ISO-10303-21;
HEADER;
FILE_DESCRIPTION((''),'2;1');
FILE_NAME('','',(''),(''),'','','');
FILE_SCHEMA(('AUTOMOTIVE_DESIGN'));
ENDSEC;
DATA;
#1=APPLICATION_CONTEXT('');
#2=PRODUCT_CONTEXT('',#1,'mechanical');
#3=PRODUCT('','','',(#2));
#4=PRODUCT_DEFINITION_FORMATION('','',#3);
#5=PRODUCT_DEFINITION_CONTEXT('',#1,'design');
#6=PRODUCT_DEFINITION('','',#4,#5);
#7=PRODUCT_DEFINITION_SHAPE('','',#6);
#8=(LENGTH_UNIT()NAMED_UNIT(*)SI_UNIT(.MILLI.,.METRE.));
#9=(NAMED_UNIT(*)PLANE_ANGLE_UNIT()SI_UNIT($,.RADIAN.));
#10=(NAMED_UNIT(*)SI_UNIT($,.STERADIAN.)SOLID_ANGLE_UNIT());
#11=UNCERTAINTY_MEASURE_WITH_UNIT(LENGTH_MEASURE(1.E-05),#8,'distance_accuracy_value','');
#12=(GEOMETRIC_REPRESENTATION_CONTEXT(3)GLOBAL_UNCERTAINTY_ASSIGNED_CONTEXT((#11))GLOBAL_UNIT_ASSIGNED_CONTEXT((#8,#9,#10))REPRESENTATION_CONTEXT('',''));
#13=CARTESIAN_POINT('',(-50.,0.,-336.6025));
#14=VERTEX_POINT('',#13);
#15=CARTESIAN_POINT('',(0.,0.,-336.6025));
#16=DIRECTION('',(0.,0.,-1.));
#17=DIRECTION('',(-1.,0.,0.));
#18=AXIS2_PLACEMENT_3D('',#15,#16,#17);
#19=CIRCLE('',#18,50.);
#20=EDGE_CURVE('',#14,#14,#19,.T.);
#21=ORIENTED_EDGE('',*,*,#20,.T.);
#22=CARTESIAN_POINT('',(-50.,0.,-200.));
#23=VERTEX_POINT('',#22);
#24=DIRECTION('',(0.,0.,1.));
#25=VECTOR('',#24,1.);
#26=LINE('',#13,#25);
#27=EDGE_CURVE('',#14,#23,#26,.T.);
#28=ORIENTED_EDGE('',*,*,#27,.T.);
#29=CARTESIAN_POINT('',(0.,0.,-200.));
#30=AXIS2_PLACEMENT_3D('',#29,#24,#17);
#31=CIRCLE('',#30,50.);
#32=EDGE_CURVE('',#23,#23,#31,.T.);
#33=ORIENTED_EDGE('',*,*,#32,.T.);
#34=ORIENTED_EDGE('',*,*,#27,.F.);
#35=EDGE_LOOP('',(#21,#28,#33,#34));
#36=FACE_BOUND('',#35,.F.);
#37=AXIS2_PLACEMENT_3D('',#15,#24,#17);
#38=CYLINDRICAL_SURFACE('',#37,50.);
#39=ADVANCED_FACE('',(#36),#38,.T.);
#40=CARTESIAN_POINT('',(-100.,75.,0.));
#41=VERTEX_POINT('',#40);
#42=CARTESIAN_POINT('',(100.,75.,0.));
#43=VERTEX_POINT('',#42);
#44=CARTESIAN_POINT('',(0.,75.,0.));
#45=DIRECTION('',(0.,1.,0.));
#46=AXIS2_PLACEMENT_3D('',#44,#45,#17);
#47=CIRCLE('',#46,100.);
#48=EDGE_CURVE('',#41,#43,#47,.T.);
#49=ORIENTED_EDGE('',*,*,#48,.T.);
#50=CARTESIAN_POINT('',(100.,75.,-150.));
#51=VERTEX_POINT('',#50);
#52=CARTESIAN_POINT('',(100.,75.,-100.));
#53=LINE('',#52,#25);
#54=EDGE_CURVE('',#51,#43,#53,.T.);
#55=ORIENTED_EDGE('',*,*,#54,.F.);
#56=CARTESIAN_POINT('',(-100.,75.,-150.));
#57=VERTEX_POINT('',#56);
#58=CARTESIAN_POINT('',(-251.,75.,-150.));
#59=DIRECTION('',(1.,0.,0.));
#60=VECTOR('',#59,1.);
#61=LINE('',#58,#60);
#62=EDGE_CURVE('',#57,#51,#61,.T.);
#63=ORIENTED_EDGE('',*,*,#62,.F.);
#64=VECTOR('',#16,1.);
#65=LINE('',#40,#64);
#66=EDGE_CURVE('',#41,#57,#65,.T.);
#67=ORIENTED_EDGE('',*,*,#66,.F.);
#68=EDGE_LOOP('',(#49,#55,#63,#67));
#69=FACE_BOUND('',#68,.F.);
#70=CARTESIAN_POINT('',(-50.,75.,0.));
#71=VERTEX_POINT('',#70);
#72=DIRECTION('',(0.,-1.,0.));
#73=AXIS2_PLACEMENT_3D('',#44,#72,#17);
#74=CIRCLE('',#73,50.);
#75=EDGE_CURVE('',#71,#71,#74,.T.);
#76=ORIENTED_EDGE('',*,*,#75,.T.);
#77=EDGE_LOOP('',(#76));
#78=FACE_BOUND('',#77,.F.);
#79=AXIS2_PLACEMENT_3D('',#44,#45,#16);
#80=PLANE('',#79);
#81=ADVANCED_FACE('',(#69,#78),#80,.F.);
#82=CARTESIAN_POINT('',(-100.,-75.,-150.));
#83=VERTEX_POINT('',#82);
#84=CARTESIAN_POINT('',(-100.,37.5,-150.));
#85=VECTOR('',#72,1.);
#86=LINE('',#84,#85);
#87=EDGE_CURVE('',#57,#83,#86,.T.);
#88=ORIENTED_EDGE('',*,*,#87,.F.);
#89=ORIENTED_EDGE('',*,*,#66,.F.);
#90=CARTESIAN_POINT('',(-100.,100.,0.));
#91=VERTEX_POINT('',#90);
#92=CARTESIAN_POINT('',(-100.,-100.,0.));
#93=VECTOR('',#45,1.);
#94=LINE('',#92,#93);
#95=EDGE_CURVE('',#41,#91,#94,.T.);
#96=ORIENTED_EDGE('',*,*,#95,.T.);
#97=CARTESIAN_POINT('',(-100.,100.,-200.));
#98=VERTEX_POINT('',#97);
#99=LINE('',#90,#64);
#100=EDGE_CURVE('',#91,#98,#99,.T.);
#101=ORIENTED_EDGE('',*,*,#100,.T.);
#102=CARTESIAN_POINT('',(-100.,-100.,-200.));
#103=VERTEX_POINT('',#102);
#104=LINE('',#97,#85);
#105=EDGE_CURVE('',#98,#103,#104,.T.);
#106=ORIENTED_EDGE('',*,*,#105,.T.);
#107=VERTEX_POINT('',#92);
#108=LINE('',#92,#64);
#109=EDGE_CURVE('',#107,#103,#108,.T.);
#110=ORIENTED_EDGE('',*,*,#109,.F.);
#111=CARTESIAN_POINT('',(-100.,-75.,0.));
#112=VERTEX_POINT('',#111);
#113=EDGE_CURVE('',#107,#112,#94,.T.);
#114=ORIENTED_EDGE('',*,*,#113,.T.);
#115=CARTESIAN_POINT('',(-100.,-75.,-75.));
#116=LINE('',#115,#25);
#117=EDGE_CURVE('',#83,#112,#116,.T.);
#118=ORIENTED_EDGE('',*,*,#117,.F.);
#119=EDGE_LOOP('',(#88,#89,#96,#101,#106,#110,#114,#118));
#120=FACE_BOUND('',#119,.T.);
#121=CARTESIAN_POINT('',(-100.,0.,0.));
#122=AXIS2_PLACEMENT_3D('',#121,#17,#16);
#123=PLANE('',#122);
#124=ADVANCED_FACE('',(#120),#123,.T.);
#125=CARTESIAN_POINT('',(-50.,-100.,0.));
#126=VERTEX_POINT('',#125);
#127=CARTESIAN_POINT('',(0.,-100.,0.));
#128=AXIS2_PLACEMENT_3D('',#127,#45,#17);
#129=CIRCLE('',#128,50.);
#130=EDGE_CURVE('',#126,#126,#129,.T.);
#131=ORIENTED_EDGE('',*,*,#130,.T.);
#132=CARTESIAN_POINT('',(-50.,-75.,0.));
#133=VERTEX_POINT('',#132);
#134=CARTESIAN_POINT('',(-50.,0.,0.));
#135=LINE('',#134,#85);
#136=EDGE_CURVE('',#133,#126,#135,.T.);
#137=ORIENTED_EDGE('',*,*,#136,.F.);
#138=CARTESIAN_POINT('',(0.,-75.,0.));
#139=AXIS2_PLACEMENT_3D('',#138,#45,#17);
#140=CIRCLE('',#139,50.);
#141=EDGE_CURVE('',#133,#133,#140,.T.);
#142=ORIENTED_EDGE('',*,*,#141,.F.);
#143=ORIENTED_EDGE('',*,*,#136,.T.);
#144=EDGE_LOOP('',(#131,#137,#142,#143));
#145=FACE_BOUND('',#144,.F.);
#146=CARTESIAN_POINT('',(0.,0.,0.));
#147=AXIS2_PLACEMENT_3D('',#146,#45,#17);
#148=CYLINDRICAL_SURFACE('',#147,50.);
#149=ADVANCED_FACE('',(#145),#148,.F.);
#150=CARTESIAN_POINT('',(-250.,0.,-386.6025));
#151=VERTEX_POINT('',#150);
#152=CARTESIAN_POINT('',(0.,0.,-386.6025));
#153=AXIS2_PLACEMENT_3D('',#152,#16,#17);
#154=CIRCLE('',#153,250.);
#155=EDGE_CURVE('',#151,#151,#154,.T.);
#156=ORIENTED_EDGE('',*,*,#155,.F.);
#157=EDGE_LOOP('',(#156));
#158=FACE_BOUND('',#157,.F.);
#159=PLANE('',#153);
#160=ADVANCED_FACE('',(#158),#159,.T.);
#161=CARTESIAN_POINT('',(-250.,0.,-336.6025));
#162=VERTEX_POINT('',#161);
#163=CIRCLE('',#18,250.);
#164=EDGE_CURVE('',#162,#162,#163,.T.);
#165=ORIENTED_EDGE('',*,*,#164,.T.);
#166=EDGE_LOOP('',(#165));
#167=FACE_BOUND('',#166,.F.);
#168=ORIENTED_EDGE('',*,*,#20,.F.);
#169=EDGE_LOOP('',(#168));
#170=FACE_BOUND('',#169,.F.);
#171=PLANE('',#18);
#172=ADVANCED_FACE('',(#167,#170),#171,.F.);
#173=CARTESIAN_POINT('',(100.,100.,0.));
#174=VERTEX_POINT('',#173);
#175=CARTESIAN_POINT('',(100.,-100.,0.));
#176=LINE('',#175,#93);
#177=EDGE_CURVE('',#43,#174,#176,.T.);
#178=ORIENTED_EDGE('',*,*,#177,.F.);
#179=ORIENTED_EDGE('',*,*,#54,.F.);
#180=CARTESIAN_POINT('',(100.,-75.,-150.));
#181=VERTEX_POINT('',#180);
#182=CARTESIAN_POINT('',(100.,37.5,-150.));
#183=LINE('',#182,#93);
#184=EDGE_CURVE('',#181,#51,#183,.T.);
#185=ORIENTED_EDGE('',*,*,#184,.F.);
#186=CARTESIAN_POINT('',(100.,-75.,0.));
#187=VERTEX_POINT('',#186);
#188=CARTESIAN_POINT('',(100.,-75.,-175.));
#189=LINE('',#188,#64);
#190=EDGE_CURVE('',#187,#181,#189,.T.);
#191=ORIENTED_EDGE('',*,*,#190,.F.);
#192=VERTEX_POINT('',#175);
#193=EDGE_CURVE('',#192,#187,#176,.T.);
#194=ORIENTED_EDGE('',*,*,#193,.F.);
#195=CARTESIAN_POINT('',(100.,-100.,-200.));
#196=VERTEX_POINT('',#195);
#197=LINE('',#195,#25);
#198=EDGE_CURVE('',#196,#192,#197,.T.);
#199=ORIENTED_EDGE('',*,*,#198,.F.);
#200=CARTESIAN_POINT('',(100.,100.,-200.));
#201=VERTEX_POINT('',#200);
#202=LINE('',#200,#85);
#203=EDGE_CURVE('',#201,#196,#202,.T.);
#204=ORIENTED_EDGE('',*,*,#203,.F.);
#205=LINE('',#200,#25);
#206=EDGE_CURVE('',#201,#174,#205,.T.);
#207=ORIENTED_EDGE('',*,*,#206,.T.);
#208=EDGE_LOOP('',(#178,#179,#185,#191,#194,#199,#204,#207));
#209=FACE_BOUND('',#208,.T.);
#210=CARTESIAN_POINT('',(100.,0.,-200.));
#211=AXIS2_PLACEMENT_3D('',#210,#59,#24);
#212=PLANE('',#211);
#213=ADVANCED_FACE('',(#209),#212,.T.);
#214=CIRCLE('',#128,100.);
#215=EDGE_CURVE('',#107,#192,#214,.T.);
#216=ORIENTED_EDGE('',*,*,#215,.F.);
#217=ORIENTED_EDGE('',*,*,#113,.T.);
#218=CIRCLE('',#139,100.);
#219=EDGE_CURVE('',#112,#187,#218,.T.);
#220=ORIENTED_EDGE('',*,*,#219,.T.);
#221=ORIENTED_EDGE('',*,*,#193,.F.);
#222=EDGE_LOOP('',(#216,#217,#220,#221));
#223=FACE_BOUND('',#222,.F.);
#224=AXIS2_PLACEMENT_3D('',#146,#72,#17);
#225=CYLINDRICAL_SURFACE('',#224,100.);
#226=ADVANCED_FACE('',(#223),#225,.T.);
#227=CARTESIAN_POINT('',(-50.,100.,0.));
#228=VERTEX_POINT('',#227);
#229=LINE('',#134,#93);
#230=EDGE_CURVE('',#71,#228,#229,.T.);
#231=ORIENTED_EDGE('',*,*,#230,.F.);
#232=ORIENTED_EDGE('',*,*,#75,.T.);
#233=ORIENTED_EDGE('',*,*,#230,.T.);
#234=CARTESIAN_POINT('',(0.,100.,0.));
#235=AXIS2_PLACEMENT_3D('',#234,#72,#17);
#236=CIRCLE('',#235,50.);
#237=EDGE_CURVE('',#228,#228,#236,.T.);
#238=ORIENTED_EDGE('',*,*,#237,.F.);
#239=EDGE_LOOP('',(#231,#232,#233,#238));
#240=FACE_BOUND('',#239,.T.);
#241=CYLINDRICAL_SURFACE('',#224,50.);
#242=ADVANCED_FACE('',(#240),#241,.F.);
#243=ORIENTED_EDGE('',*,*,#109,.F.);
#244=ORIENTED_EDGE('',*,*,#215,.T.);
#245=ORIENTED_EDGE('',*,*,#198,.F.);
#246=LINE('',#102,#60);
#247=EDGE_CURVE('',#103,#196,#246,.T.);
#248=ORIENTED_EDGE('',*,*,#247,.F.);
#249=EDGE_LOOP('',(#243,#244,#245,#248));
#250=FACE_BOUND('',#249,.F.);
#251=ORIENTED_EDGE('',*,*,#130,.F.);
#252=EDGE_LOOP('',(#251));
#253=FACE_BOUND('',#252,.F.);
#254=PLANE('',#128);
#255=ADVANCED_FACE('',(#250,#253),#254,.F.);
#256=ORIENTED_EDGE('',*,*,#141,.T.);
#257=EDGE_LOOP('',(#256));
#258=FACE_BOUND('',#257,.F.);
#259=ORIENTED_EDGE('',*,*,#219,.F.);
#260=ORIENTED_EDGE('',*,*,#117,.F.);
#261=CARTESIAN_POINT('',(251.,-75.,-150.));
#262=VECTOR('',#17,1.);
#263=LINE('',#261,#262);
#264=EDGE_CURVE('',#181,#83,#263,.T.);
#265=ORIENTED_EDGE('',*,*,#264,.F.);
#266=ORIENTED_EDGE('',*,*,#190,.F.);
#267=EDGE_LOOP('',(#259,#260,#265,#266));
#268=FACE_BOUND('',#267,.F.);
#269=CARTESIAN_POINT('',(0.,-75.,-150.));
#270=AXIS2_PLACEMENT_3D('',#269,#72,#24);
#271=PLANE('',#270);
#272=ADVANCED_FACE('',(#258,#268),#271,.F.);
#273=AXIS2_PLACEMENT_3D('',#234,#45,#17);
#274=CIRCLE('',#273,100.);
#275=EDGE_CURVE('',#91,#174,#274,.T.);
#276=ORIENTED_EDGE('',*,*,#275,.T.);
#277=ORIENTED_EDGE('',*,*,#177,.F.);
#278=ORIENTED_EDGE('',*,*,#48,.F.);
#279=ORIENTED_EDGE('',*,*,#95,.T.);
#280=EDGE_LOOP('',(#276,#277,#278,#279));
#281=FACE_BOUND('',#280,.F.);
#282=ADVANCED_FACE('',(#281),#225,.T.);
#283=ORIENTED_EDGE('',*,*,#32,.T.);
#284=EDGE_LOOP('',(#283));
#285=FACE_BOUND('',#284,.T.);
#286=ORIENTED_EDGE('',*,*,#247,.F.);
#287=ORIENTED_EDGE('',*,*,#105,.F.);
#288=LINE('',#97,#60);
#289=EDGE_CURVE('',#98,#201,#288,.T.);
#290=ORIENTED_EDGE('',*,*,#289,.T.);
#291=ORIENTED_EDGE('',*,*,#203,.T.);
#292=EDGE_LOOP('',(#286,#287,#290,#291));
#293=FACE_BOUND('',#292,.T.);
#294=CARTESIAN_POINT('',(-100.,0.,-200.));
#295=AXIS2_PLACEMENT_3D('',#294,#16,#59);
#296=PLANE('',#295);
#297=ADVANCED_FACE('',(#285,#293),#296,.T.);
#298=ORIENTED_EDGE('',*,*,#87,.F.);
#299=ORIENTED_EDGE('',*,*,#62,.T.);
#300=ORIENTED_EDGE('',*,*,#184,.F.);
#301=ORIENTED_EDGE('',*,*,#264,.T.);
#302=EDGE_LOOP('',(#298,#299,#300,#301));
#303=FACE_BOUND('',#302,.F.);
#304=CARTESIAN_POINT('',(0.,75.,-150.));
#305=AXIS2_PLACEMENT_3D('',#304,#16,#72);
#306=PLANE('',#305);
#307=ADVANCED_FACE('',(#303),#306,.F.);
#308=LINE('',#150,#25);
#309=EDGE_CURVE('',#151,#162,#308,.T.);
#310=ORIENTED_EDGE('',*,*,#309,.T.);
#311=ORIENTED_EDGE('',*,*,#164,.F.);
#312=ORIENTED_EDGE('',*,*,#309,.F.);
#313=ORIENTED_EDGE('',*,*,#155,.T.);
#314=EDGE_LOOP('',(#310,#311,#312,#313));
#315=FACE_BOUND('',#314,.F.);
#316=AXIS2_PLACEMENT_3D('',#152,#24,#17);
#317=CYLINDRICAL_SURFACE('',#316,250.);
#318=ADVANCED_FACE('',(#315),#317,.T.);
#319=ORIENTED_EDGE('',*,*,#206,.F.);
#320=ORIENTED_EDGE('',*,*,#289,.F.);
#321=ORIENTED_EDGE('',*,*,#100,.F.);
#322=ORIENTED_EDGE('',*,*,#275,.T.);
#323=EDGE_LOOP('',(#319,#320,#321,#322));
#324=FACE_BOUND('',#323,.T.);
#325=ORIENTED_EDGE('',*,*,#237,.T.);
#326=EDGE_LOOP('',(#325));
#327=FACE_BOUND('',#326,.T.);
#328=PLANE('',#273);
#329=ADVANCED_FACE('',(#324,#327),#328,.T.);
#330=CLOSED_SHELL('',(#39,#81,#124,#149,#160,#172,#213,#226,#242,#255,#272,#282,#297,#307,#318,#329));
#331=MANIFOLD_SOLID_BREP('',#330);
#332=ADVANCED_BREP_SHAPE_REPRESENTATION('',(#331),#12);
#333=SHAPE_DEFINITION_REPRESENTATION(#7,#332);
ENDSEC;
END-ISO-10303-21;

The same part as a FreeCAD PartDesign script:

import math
import FreeCAD as App
import Part
import Sketcher
from FreeCAD import Vector
Q = App.Units.Quantity

doc = App.newDocument("Part")
body = doc.addObject("PartDesign::Body", "Body")

sketch1 = doc.addObject("Sketcher::SketchObject", "Sketch")
body.addObject(sketch1)
sketch1.AttachmentSupport = (doc.XZ_Plane, [""])
sketch1.MapMode = "FlatFace"
sketch1.addGeometry([
    Part.LineSegment(Vector(0, -87, 0), Vector(0, -387, 0)),
    Part.LineSegment(Vector(0, -387, 0), Vector(-250, -387, 0)),
    Part.LineSegment(Vector(-250, -387, 0), Vector(-250, -337, 0)),
    Part.LineSegment(Vector(-250, -337, 0), Vector(-50, -337, 0)),
    Part.LineSegment(Vector(-50, -337, 0), Vector(-50, -87, 0)),
    Part.LineSegment(Vector(-50, -87, 0), Vector(0, -87, 0)),
], False)
sketch1.addConstraint([
    Sketcher.Constraint("Coincident", 0, 2, 1, 1),
    Sketcher.Constraint("Coincident", 1, 2, 2, 1),
    Sketcher.Constraint("Coincident", 2, 2, 3, 1),
    Sketcher.Constraint("Coincident", 3, 2, 4, 1),
    Sketcher.Constraint("Coincident", 4, 2, 5, 1),
    Sketcher.Constraint("Coincident", 5, 2, 0, 1),
    Sketcher.Constraint("Vertical", 0),
    Sketcher.Constraint("Horizontal", 1),
    Sketcher.Constraint("Vertical", 2),
    Sketcher.Constraint("Horizontal", 3),
    Sketcher.Constraint("Vertical", 4),
    Sketcher.Constraint("Horizontal", 5),
    Sketcher.Constraint("PointOnObject", 0, 2, -2),
    Sketcher.Constraint("Equal", 5, 2),
    Sketcher.Constraint("Equal", 1, 4),
    Sketcher.Constraint("DistanceX", 1, 2, 1, 1, Q("250 mm")),
    Sketcher.Constraint("DistanceX", 5, 1, 5, 2, Q("50 mm")),
    Sketcher.Constraint("DistanceY", 0, 2, -1, 1, Q("386.6025 mm")),
])
revolution = doc.addObject("PartDesign::Revolution", "Revolution")
body.addObject(revolution)
revolution.Profile = sketch1
revolution.ReferenceAxis = (sketch1, ["V_Axis"])
revolution.Angle = 360

sketch2 = doc.addObject("Sketcher::SketchObject", "Sketch001")
body.addObject(sketch2)
sketch2.AttachmentSupport = (doc.XZ_Plane, [""])
sketch2.MapMode = "FlatFace"
sketch2.addGeometry([
    Part.LineSegment(Vector(-100, -200, 0), Vector(-100, 0, 0)),
    Part.ArcOfCircle(Part.Circle(Vector(0, 0, 0), Vector(0, 0, 1), 100), math.radians(0), math.radians(180)),
    Part.LineSegment(Vector(100, 0, 0), Vector(100, -200, 0)),
    Part.LineSegment(Vector(100, -200, 0), Vector(-100, -200, 0)),
], False)
sketch2.addConstraint([
    Sketcher.Constraint("Tangent", 0, 2, 1, 2),
    Sketcher.Constraint("Tangent", 1, 1, 2, 1),
    Sketcher.Constraint("Coincident", 2, 2, 3, 1),
    Sketcher.Constraint("Coincident", 3, 2, 0, 1),
    Sketcher.Constraint("Vertical", 0),
    Sketcher.Constraint("Vertical", 2),
    Sketcher.Constraint("Horizontal", 3),
    Sketcher.Constraint("Coincident", 1, 3, -1, 1),
    Sketcher.Constraint("Equal", 3, 0),
    Sketcher.Constraint("Radius", 1, Q("100 mm")),
])
pad1 = doc.addObject("PartDesign::Pad", "Pad")
body.addObject(pad1)
pad1.Profile = sketch2
pad1.Length = 200
pad1.Midplane = True

sketch3 = doc.addObject("Sketcher::SketchObject", "Sketch002")
body.addObject(sketch3)
sketch3.AttachmentSupport = (doc.XZ_Plane, [""])
sketch3.MapMode = "FlatFace"
sketch3.addGeometry(Part.Circle(Vector(0, 0, 0), Vector(0, 0, 1), 50), False)
sketch3.addConstraint([
    Sketcher.Constraint("Coincident", 0, 3, -1, 1),
    Sketcher.Constraint("Diameter", 0, Q("100 mm")),
])
pocket1 = doc.addObject("PartDesign::Pocket", "Pocket")
body.addObject(pocket1)
pocket1.Profile = sketch3
pocket1.Type = "ThroughAll"
pocket1.Midplane = True

sketch4 = doc.addObject("Sketcher::SketchObject", "Sketch003")
body.addObject(sketch4)
sketch4.AttachmentSupport = (doc.YZ_Plane, [""])
sketch4.MapMode = "FlatFace"
sketch4.addGeometry([
    Part.LineSegment(Vector(-75, -150, 0), Vector(75, -150, 0)),
    Part.LineSegment(Vector(75, -150, 0), Vector(75, 100, 0)),
    Part.LineSegment(Vector(75, 100, 0), Vector(-75, 100, 0)),
    Part.LineSegment(Vector(-75, 100, 0), Vector(-75, -150, 0)),
], False)
sketch4.addConstraint([
    Sketcher.Constraint("Coincident", 0, 2, 1, 1),
    Sketcher.Constraint("Coincident", 1, 2, 2, 1),
    Sketcher.Constraint("Coincident", 2, 2, 3, 1),
    Sketcher.Constraint("Coincident", 3, 2, 0, 1),
    Sketcher.Constraint("Horizontal", 0),
    Sketcher.Constraint("Vertical", 1),
    Sketcher.Constraint("Horizontal", 2),
    Sketcher.Constraint("Vertical", 3),
    Sketcher.Constraint("DistanceX", 0, 1, 0, 2, Q("150 mm")),
    Sketcher.Constraint("DistanceX", -1, 1, 0, 2, Q("75 mm")),
    Sketcher.Constraint("DistanceY", 0, 2, -1, 1, Q("150 mm")),
    Sketcher.Constraint("DistanceY", -1, 1, 1, 2, Q("100 mm")),
])
pocket2 = doc.addObject("PartDesign::Pocket", "Pocket001")
body.addObject(pocket2)
pocket2.Profile = sketch4
pocket2.Type = "ThroughAll"
pocket2.Midplane = True

doc.recompute()
